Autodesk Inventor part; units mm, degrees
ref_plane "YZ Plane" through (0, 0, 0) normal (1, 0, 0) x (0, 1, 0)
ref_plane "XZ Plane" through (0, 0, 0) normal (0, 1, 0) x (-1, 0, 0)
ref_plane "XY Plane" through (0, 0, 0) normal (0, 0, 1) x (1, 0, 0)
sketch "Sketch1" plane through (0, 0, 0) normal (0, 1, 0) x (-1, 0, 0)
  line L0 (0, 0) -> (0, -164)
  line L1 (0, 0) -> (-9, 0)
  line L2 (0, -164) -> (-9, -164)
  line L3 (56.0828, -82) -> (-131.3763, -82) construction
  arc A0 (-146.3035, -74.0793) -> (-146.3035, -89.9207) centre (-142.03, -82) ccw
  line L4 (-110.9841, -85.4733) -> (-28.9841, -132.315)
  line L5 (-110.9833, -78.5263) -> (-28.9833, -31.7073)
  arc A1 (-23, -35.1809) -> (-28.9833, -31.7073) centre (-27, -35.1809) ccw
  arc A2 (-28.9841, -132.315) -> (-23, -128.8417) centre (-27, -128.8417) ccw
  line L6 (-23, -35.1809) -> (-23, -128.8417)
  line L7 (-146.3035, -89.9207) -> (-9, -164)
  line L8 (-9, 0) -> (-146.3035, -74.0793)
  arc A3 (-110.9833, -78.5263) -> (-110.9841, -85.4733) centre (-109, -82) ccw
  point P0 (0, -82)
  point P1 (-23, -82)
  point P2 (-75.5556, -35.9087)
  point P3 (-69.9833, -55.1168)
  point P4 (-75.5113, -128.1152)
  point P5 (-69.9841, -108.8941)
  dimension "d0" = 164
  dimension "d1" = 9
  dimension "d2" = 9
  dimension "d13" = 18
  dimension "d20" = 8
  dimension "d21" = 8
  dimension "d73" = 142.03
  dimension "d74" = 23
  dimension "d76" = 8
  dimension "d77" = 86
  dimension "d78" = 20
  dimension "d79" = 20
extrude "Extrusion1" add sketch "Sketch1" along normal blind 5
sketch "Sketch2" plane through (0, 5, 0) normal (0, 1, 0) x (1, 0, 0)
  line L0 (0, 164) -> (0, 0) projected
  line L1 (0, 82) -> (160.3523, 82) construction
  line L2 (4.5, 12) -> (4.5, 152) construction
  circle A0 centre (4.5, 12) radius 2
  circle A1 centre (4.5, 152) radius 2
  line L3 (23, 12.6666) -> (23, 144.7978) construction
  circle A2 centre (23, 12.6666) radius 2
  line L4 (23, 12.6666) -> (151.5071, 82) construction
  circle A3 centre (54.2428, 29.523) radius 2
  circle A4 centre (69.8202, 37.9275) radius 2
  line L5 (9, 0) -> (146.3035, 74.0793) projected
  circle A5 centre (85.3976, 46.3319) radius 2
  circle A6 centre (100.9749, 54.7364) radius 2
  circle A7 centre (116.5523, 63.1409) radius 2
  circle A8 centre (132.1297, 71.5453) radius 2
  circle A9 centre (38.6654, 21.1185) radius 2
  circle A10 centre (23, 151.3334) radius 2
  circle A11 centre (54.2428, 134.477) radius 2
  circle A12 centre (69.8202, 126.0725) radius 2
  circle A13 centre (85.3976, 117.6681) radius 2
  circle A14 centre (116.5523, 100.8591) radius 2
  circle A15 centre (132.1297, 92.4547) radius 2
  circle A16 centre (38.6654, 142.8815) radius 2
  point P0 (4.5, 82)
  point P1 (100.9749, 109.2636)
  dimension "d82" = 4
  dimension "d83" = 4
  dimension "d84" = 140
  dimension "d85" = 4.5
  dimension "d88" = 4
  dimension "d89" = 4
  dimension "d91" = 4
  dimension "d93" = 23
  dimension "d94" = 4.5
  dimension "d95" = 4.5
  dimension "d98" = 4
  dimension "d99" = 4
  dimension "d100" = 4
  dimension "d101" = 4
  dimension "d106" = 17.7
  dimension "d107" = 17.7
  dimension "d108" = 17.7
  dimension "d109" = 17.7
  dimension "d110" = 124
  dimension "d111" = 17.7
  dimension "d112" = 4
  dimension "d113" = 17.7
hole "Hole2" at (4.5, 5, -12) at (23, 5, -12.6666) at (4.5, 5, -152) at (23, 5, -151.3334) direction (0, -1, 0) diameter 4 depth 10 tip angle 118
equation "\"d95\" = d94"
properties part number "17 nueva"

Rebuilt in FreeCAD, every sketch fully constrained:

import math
import FreeCAD as App
import Part
import Sketcher

doc = App.newDocument("Part")
params = doc.addObject("Spreadsheet::Sheet", "Params")
for row, (alias, value) in enumerate([
    ("sketch1_radius", "9 mm"),
    ("sketch1_radius2", "4 mm"),
    ("sketch1_width", "9 mm"),
    ("sketch1_height", "164 mm"),
    ("pad1_length", "5 mm"),
    ("sketch2_diameter", "4 mm"),
    ("hole_diameter", "4 mm"),
    ("hole_depth", "10 mm"),
], start=1):
    params.set(f"A{row}", alias)
    params.set(f"B{row}", "=" + value)
    params.setAlias(f"B{row}", alias)

body = doc.addObject("PartDesign::Body", "Body")

# Sketch on XZ plane
sketch1 = body.newObject("Sketcher::SketchObject", "Sketch")
sketch1.AttachmentSupport = (doc.getObject("XZ_Plane"), [""])
sketch1.MapMode = "FlatFace"
sketch1.addGeometry([
    Part.LineSegment(App.Vector(0, -164, 0), App.Vector(0, 0, 0)),  # 0
    Part.LineSegment(App.Vector(0, 0, 0), App.Vector(9, 0, 0)),  # 1
    Part.LineSegment(App.Vector(9, 0, 0), App.Vector(146.3035, -74.0793, 0)),  # 2
    Part.ArcOfCircle(Part.Circle(App.Vector(142.03, -82, 0), App.Vector(0, 0, 1), 9.000016), math.radians(-61.651557), math.radians(61.651557)),  # 3
    Part.LineSegment(App.Vector(146.3035, -89.9207, 0), App.Vector(9, -164, 0)),  # 4
    Part.LineSegment(App.Vector(9, -164, 0), App.Vector(0, -164, 0)),  # 5
    Part.LineSegment(App.Vector(28.9841, -132.315, 0), App.Vector(110.9841, -85.4733, 0)),  # 6
    Part.ArcOfCircle(Part.Circle(App.Vector(109, -82, 0), App.Vector(0, 0, 1), 4.000009), math.radians(-60.263114), math.radians(60.275906)),  # 7
    Part.LineSegment(App.Vector(110.9833, -78.5263, 0), App.Vector(28.9833, -31.7073, 0)),  # 8
    Part.ArcOfCircle(Part.Circle(App.Vector(27, -35.1809, 0), App.Vector(0, 0, 1), 4), math.radians(60.275195), math.radians(180)),  # 9
    Part.LineSegment(App.Vector(23, -35.1809, 0), App.Vector(23, -128.8417, 0)),  # 10
    Part.ArcOfCircle(Part.Circle(App.Vector(27, -128.8417, 0), App.Vector(0, 0, 1), 4.000058), math.radians(180), math.radians(299.736886)),  # 11
], False)
sketch1.addConstraint([
    Sketcher.Constraint("Coincident", 0, 2, 1, 1),
    Sketcher.Constraint("Coincident", 1, 2, 2, 1),
    Sketcher.Constraint("Tangent", 2, 2, 3, 2),
    Sketcher.Constraint("Tangent", 3, 1, 4, 1),
    Sketcher.Constraint("Coincident", 4, 2, 5, 1),
    Sketcher.Constraint("Coincident", 5, 2, 0, 1),
    Sketcher.Constraint("Tangent", 6, 2, 7, 1),
    Sketcher.Constraint("Tangent", 7, 2, 8, 1),
    Sketcher.Constraint("Tangent", 8, 2, 9, 1),
    Sketcher.Constraint("Tangent", 9, 2, 10, 1),
    Sketcher.Constraint("Tangent", 10, 2, 11, 1),
    Sketcher.Constraint("Tangent", 11, 2, 6, 1),
    Sketcher.Constraint("Vertical", 0),
    Sketcher.Constraint("Horizontal", 1),
    Sketcher.Constraint("Horizontal", 5),
    Sketcher.Constraint("Vertical", 10),
    Sketcher.Constraint("Coincident", 0, 2, -1, 1),
    Sketcher.Constraint("Equal", 7, 9),
    Sketcher.Constraint("Equal", 9, 11),
    Sketcher.Constraint("Horizontal", 3, 3, 7, 3),
    Sketcher.Constraint("Vertical", 2, 2, 3, 1),
    Sketcher.Constraint("Vertical", 1, 2, 4, 2),
    Sketcher.Constraint("Radius", 3, 9.0),
    Sketcher.Constraint("Radius", 7, 4.0),
    Sketcher.Constraint("DistanceX", 1, 1, 1, 2, 9.0),
    Sketcher.Constraint("DistanceY", 0, 1, 0, 2, 164.0),
    Sketcher.Constraint("DistanceX", -1, 1, 9, 2, 23.0),
    Sketcher.Constraint("DistanceX", -1, 1, 3, 3, 142.03),
    Sketcher.Constraint("DistanceX", -1, 1, 7, 3, 109.0),
    Sketcher.Constraint("Distance", 6, 94.436),
    Sketcher.Constraint("DistanceY", 10, 2, 10, 1, 93.6608),
])
sketch1.setExpression("Constraints[22]", "Params.sketch1_radius")
sketch1.setExpression("Constraints[23]", "Params.sketch1_radius2")
sketch1.setExpression("Constraints[24]", "Params.sketch1_width")
sketch1.setExpression("Constraints[25]", "Params.sketch1_height")
pad1 = body.newObject("PartDesign::Pad", "Pad")
pad1.Profile = sketch1
pad1.setExpression("Length", "Params.pad1_length")
pad1.Reversed = True

# Sketch on XZ plane
sketch2 = body.newObject("Sketcher::SketchObject", "Sketch001")
sketch2.AttachmentSupport = (doc.getObject("XZ_Plane"), [""])
sketch2.MapMode = "FlatFace"
sketch2.AttachmentOffset = App.Placement(App.Vector(0, 0, -5), App.Rotation())
sketch2.addGeometry([
    Part.Circle(App.Vector(4.5, -12, 0), App.Vector(0, 0, 1), 2),
    Part.Circle(App.Vector(23, -12.6666, 0), App.Vector(0, 0, 1), 2),
    Part.Circle(App.Vector(4.5, -152, 0), App.Vector(0, 0, 1), 2),
    Part.Circle(App.Vector(23, -151.3334, 0), App.Vector(0, 0, 1), 2),
], False)
sketch2.addConstraint([
    Sketcher.Constraint("Equal", 0, 1),
    Sketcher.Constraint("Equal", 1, 2),
    Sketcher.Constraint("Equal", 2, 3),
    Sketcher.Constraint("Vertical", 0, 3, 2, 3),
    Sketcher.Constraint("Vertical", 1, 3, 3, 3),
    Sketcher.Constraint("Diameter", 0, 4.0),
    Sketcher.Constraint("DistanceY", 0, 3, -1, 1, 12.0),
    Sketcher.Constraint("DistanceX", -1, 1, 1, 3, 23.0),
    Sketcher.Constraint("DistanceY", 2, 3, -1, 1, 152.0),
    Sketcher.Constraint("DistanceX", -1, 1, 0, 3, 4.5),
    Sketcher.Constraint("DistanceY", 1, 3, -1, 1, 12.6666),
    Sketcher.Constraint("DistanceY", 3, 3, -1, 1, 151.3334),
])
sketch2.setExpression("Constraints[5]", "Params.sketch2_diameter")
doc.recompute()
hole = body.newObject("PartDesign::Hole", "Hole")
hole.Profile = sketch2
hole.ThreadType = "None"
hole.setExpression("Diameter", "Params.hole_diameter")
hole.DepthType = "Dimension"
hole.setExpression("Depth", "Params.hole_depth")
hole.DrillPoint = "Angled"
hole.DrillPointAngle = 118
hole.Reversed = True

doc.recompute()
